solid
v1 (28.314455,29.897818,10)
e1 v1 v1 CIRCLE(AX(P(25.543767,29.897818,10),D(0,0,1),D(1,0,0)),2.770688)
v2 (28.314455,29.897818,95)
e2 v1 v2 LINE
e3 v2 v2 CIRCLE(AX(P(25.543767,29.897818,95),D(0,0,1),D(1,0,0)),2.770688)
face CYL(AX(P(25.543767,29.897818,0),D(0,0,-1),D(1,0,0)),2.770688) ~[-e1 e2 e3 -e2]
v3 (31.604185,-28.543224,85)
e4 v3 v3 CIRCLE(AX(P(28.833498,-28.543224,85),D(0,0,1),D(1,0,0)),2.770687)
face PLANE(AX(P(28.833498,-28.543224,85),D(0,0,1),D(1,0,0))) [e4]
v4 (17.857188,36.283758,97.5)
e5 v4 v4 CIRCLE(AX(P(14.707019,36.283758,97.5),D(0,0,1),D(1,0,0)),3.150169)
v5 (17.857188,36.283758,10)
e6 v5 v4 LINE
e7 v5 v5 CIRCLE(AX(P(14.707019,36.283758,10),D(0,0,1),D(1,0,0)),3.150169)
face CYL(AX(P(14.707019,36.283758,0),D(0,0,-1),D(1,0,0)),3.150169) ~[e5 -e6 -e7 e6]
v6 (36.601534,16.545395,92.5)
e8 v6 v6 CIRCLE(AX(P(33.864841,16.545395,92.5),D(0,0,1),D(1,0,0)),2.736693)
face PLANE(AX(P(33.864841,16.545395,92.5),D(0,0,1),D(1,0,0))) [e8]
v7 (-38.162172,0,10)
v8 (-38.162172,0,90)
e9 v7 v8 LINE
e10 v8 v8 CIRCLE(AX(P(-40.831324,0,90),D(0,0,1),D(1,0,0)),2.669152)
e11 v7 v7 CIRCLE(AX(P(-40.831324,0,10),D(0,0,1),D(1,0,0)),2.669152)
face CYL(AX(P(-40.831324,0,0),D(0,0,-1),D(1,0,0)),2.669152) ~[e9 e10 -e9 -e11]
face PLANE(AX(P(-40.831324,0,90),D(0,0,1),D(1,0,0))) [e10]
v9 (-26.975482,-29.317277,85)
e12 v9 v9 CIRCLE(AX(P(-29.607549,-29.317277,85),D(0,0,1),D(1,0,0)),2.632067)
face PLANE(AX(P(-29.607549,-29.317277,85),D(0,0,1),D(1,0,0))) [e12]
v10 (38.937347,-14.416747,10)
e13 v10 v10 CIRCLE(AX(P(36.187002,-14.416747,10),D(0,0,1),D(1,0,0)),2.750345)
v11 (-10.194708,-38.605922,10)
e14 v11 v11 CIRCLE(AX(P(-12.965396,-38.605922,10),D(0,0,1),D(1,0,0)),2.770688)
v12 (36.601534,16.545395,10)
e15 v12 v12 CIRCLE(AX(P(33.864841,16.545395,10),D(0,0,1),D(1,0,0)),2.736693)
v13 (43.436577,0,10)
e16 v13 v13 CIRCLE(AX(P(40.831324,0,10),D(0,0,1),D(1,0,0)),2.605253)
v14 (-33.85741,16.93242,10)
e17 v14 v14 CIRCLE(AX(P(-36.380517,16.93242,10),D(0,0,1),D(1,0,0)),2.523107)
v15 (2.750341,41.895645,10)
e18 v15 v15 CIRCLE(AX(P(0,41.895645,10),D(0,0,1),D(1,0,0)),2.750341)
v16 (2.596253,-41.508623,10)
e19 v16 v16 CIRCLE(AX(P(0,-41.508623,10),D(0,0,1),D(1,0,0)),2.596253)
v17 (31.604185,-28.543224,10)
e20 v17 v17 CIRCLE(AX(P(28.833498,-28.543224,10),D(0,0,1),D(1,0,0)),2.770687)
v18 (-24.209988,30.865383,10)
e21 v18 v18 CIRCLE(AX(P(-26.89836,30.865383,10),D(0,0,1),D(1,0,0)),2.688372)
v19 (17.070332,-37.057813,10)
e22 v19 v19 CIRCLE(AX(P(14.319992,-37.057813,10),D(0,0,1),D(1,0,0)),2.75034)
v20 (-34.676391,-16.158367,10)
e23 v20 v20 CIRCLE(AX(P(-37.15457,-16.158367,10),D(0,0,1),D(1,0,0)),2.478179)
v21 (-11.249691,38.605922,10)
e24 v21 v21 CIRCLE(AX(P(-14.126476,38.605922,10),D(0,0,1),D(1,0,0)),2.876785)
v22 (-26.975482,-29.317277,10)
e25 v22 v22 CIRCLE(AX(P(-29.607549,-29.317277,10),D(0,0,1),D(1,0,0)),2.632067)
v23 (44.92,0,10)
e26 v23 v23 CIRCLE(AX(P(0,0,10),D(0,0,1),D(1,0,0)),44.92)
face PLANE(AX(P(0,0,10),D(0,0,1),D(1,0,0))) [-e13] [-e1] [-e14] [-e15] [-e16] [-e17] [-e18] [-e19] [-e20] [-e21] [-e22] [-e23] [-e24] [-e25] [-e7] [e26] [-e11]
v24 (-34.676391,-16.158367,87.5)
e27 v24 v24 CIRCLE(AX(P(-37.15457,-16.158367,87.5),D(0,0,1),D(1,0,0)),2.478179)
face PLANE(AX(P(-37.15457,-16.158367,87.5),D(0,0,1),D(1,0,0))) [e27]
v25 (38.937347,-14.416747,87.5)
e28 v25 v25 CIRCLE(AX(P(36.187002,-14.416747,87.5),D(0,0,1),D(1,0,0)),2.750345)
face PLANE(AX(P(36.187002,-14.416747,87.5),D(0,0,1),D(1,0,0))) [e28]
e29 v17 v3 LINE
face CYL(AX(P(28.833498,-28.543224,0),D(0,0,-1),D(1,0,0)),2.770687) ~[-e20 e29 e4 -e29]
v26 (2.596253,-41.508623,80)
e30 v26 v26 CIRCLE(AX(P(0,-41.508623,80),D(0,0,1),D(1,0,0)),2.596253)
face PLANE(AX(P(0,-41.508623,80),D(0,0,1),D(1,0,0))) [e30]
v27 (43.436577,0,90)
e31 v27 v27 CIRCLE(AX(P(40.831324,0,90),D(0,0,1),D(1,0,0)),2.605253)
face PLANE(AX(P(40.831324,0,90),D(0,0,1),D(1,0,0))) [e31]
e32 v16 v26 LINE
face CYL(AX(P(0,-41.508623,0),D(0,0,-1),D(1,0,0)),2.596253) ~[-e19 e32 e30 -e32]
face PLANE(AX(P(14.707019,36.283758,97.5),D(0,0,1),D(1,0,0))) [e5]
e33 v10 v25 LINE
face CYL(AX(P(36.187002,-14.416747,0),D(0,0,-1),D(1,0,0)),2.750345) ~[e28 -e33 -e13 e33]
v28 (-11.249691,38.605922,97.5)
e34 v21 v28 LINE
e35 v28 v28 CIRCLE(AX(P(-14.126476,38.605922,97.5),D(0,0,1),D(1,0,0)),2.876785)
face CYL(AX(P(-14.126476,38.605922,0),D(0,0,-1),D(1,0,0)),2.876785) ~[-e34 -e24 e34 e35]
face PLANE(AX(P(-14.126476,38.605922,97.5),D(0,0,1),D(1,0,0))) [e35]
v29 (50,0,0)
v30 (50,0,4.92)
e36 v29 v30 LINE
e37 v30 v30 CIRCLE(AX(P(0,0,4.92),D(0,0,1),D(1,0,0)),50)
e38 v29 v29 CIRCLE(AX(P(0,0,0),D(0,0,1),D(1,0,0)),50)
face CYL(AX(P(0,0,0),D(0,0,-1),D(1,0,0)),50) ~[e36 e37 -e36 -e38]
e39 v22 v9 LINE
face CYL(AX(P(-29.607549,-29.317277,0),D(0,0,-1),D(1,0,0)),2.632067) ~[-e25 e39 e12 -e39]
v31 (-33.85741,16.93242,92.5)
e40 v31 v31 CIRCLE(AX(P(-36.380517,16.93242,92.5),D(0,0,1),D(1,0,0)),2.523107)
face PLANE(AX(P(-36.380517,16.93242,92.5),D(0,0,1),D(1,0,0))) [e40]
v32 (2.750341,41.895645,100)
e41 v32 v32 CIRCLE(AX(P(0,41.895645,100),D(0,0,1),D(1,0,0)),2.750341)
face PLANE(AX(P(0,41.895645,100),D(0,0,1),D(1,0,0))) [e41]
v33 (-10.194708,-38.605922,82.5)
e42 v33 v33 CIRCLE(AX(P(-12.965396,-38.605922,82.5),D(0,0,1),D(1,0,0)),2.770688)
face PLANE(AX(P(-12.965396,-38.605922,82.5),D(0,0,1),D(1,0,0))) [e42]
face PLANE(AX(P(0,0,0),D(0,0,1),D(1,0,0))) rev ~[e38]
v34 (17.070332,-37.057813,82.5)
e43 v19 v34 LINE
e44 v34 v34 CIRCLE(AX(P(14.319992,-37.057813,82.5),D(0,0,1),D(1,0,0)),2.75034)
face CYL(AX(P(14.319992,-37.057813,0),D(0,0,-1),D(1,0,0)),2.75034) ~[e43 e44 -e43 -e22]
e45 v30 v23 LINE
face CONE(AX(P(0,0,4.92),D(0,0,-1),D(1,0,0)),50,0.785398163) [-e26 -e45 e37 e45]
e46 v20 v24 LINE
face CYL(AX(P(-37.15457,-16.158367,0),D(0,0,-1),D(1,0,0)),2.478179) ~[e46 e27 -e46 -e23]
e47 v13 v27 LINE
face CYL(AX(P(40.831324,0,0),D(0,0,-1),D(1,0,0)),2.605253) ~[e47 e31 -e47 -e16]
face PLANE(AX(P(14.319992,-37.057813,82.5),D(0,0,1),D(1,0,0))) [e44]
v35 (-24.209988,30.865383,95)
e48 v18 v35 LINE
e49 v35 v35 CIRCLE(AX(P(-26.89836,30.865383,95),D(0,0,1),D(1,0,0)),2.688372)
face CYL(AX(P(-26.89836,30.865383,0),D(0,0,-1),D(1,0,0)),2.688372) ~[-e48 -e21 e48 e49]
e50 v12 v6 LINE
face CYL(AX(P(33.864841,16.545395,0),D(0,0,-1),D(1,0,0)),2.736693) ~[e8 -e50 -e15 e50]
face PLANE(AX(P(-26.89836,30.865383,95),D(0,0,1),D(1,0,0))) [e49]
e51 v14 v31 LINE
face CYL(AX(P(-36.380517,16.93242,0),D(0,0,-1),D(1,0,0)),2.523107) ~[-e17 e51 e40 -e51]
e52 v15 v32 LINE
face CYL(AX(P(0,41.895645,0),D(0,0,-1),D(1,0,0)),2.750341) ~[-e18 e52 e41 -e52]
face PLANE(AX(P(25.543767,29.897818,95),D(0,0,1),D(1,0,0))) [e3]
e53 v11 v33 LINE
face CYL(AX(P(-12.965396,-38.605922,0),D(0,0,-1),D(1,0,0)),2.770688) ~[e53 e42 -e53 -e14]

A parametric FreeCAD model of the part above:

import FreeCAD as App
import Part
import Sketcher
Q = App.Units.Quantity


def edges_at(feature, points):
    """Names of the edges that pass closest to the given points."""
    edges = feature.Shape.Edges
    near = lambda p: min(range(len(edges)), key=lambda i: edges[i].distToShape(Part.Vertex(*p))[0])
    return sorted({f"Edge{near(p) + 1}" for p in points})

doc = App.newDocument("Part")
body = doc.addObject("PartDesign::Body", "Body")

# Sketch on XY plane
sketch1 = body.newObject("Sketcher::SketchObject", "Sketch")
sketch1.AttachmentSupport = (doc.getObject("XY_Plane"), [""])
sketch1.MapMode = "FlatFace"
sketch1.addGeometry(Part.Circle(App.Vector(0, 0, 0), App.Vector(0, 0, 1), 50), False)
sketch1.addGeometry(Part.Circle(App.Vector(-29.607549, -29.317277, 0), App.Vector(0, 0, 1), 2.632067), False)
sketch1.addGeometry(Part.Circle(App.Vector(-12.965396, -38.605922, 0), App.Vector(0, 0, 1), 2.770688), False)
sketch1.addGeometry(Part.Circle(App.Vector(-37.15457, -16.158367, 0), App.Vector(0, 0, 1), 2.478179), False)
sketch1.addGeometry(Part.Circle(App.Vector(-40.831324, 0, 0), App.Vector(0, 0, 1), 2.669152), False)
sketch1.addGeometry(Part.Circle(App.Vector(0, -41.508623, 0), App.Vector(0, 0, 1), 2.596253), False)
sketch1.addGeometry(Part.Circle(App.Vector(14.319992, -37.057813, 0), App.Vector(0, 0, 1), 2.75034), False)
sketch1.addGeometry(Part.Circle(App.Vector(28.833498, -28.543224, 0), App.Vector(0, 0, 1), 2.770687), False)
sketch1.addGeometry(Part.Circle(App.Vector(36.187002, -14.416747, 0), App.Vector(0, 0, 1), 2.750345), False)
sketch1.addGeometry(Part.Circle(App.Vector(40.831324, 0, 0), App.Vector(0, 0, 1), 2.605253), False)
sketch1.addGeometry(Part.Circle(App.Vector(-36.380517, 16.93242, 0), App.Vector(0, 0, 1), 2.523107), False)
sketch1.addGeometry(Part.Circle(App.Vector(-26.89836, 30.865383, 0), App.Vector(0, 0, 1), 2.688372), False)
sketch1.addGeometry(Part.Circle(App.Vector(-14.126476, 38.605922, 0), App.Vector(0, 0, 1), 2.876785), False)
sketch1.addGeometry(Part.Circle(App.Vector(33.864841, 16.545395, 0), App.Vector(0, 0, 1), 2.736693), False)
sketch1.addGeometry(Part.Circle(App.Vector(0, 41.895645, 0), App.Vector(0, 0, 1), 2.750341), False)
sketch1.addGeometry(Part.Circle(App.Vector(14.707019, 36.283758, 0), App.Vector(0, 0, 1), 3.150169), False)
sketch1.addGeometry(Part.Circle(App.Vector(25.543767, 29.897818, 0), App.Vector(0, 0, 1), 2.770688), False)
sketch1.addConstraint(Sketcher.Constraint("Coincident", 0, 3, -1, 1))
sketch1.addConstraint(Sketcher.Constraint("Equal", 2, 7))
sketch1.addConstraint(Sketcher.Constraint("Equal", 6, 14))
sketch1.addConstraint(Sketcher.Constraint("Equal", 7, 16))
sketch1.addConstraint(Sketcher.Constraint("Symmetric", 4, 3, 9, 3, -1, 1))
sketch1.addConstraint(Sketcher.Constraint("PointOnObject", 4, 3, -1))
sketch1.addConstraint(Sketcher.Constraint("PointOnObject", 5, 3, -2))
sketch1.addConstraint(Sketcher.Constraint("PointOnObject", 14, 3, -2))
sketch1.addConstraint(Sketcher.Constraint("Diameter", 0, Q("100 mm")))
sketch1.addConstraint(Sketcher.Constraint("Diameter", 6, Q("5.50068 mm")))
sketch1.addConstraint(Sketcher.Constraint("Diameter", 8, Q("5.50069 mm")))
sketch1.addConstraint(Sketcher.Constraint("Diameter", 12, Q("5.75357 mm")))
sketch1.addConstraint(Sketcher.Constraint("Diameter", 1, Q("5.264134 mm")))
sketch1.addConstraint(Sketcher.Constraint("Diameter", 2, Q("5.541376 mm")))
sketch1.addConstraint(Sketcher.Constraint("Diameter", 3, Q("4.956358 mm")))
sketch1.addConstraint(Sketcher.Constraint("Diameter", 4, Q("5.338304 mm")))
sketch1.addConstraint(Sketcher.Constraint("Diameter", 5, Q("5.192506 mm")))
sketch1.addConstraint(Sketcher.Constraint("Diameter", 9, Q("5.210506 mm")))
sketch1.addConstraint(Sketcher.Constraint("Diameter", 10, Q("5.046214 mm")))
sketch1.addConstraint(Sketcher.Constraint("Diameter", 11, Q("5.376744 mm")))
sketch1.addConstraint(Sketcher.Constraint("Diameter", 13, Q("5.473386 mm")))
sketch1.addConstraint(Sketcher.Constraint("Diameter", 15, Q("6.300338 mm")))
sketch1.addConstraint(Sketcher.Constraint("DistanceY", 5, 3, 2, 3, Q("2.902701 mm")))
sketch1.addConstraint(Sketcher.Constraint("DistanceY", 5, 3, 7, 3, Q("12.965399 mm")))
sketch1.addConstraint(Sketcher.Constraint("DistanceY", 10, 3, 12, 3, Q("21.673502 mm")))
sketch1.addConstraint(Sketcher.Constraint("DistanceX", 1, 3, -1, 1, Q("29.607549 mm")))
sketch1.addConstraint(Sketcher.Constraint("DistanceX", 3, 3, -1, 1, Q("37.15457 mm")))
sketch1.addConstraint(Sketcher.Constraint("DistanceX", -1, 1, 6, 3, Q("14.319992 mm")))
sketch1.addConstraint(Sketcher.Constraint("DistanceY", -1, 1, 10, 3, Q("16.93242 mm")))
sketch1.addConstraint(Sketcher.Constraint("DistanceX", 11, 3, -1, 1, Q("26.89836 mm")))
sketch1.addConstraint(Sketcher.Constraint("DistanceX", -1, 1, 13, 3, Q("33.864841 mm")))
sketch1.addConstraint(Sketcher.Constraint("DistanceX", -1, 1, 15, 3, Q("14.707019 mm")))
sketch1.addConstraint(Sketcher.Constraint("DistanceY", -1, 1, 16, 3, Q("29.897818 mm")))
sketch1.addConstraint(Sketcher.Constraint("DistanceY", 1, 3, 3, 3, Q("13.15891 mm")))
sketch1.addConstraint(Sketcher.Constraint("DistanceX", 4, 3, 2, 3, Q("27.865928 mm")))
sketch1.addConstraint(Sketcher.Constraint("DistanceY", 5, 3, 6, 3, Q("4.45081 mm")))
sketch1.addConstraint(Sketcher.Constraint("DistanceX", 6, 3, 8, 3, Q("21.86701 mm")))
sketch1.addConstraint(Sketcher.Constraint("DistanceX", 10, 3, 2, 3, Q("23.415121 mm")))
sketch1.addConstraint(Sketcher.Constraint("DistanceY", 3, 3, 11, 3, Q("47.02375 mm")))
sketch1.addConstraint(Sketcher.Constraint("DistanceY", 11, 3, 12, 3, Q("7.740539 mm")))
sketch1.addConstraint(Sketcher.Constraint("DistanceX", 10, 3, 12, 3, Q("22.254041 mm")))
sketch1.addConstraint(Sketcher.Constraint("DistanceY", 8, 3, 13, 3, Q("30.962142 mm")))
sketch1.addConstraint(Sketcher.Constraint("DistanceY", 7, 3, 13, 3, Q("45.088619 mm")))
sketch1.addConstraint(Sketcher.Constraint("DistanceY", 13, 3, 14, 3, Q("25.35025 mm")))
sketch1.addConstraint(Sketcher.Constraint("DistanceY", 16, 3, 15, 3, Q("6.38594 mm")))
sketch1.addConstraint(Sketcher.Constraint("DistanceX", 2, 3, -1, 1, Q("12.965396 mm")))
sketch1.addConstraint(Sketcher.Constraint("DistanceY", 2, 3, -1, 1, Q("38.605922 mm")))
sketch1.addConstraint(Sketcher.Constraint("DistanceX", -1, 1, 7, 3, Q("28.833498 mm")))
sketch1.addConstraint(Sketcher.Constraint("DistanceX", -1, 1, 16, 3, Q("25.543767 mm")))
pad1 = body.newObject("PartDesign::Pad", "Pad")
pad1.Profile = sketch1
pad1.Length = 10
doc.recompute()

chamfer = body.newObject("PartDesign::Chamfer", "Chamfer")
chamfer.Base = (pad1, edges_at(pad1, [(-50, 0, 10)]))
chamfer.Size = 5.08

# Sketch on XY plane
sketch2 = body.newObject("Sketcher::SketchObject", "Sketch001")
sketch2.AttachmentSupport = (doc.getObject("XY_Plane"), [""])
sketch2.MapMode = "FlatFace"
sketch2.addGeometry(Part.Circle(App.Vector(0, 41.895645, 0), App.Vector(0, 0, 1), 2.750341), False)
sketch2.addConstraint(Sketcher.Constraint("PointOnObject", 0, 3, -2))
sketch2.addConstraint(Sketcher.Constraint("Diameter", 0, Q("5.500682 mm")))
sketch2.addConstraint(Sketcher.Constraint("DistanceY", -1, 1, 0, 3, Q("41.895645 mm")))
pad2 = body.newObject("PartDesign::Pad", "Pad001")
pad2.Profile = sketch2
pad2.Length = 100

# Sketch on XY plane
sketch3 = body.newObject("Sketcher::SketchObject", "Sketch002")
sketch3.AttachmentSupport = (doc.getObject("XY_Plane"), [""])
sketch3.MapMode = "FlatFace"
sketch3.addGeometry(Part.Circle(App.Vector(-14.126476, 38.605922, 0), App.Vector(0, 0, 1), 2.876785), False)
sketch3.addGeometry(Part.Circle(App.Vector(14.707019, 36.283758, 0), App.Vector(0, 0, 1), 3.150169), False)
sketch3.addConstraint(Sketcher.Constraint("Diameter", 0, Q("5.75357 mm")))
sketch3.addConstraint(Sketcher.Constraint("Diameter", 1, Q("6.300338 mm")))
sketch3.addConstraint(Sketcher.Constraint("DistanceX", -1, 1, 1, 3, Q("14.707019 mm")))
sketch3.addConstraint(Sketcher.Constraint("DistanceX", 0, 3, -1, 1, Q("14.126476 mm")))
sketch3.addConstraint(Sketcher.Constraint("DistanceY", -1, 1, 0, 3, Q("38.605922 mm")))
sketch3.addConstraint(Sketcher.Constraint("DistanceY", -1, 1, 1, 3, Q("36.283758 mm")))
pad3 = body.newObject("PartDesign::Pad", "Pad002")
pad3.Profile = sketch3
pad3.Length = 97.5

# Sketch on XY plane
sketch4 = body.newObject("Sketcher::SketchObject", "Sketch003")
sketch4.AttachmentSupport = (doc.getObject("XY_Plane"), [""])
sketch4.MapMode = "FlatFace"
sketch4.addGeometry(Part.Circle(App.Vector(-26.89836, 30.865383, 0), App.Vector(0, 0, 1), 2.688372), False)
sketch4.addGeometry(Part.Circle(App.Vector(25.543767, 29.897818, 0), App.Vector(0, 0, 1), 2.770688), False)
sketch4.addConstraint(Sketcher.Constraint("Diameter", 0, Q("5.376744 mm")))
sketch4.addConstraint(Sketcher.Constraint("Diameter", 1, Q("5.541376 mm")))
sketch4.addConstraint(Sketcher.Constraint("DistanceX", 0, 3, -1, 1, Q("26.89836 mm")))
sketch4.addConstraint(Sketcher.Constraint("DistanceY", -1, 1, 1, 3, Q("29.897818 mm")))
sketch4.addConstraint(Sketcher.Constraint("DistanceY", -1, 1, 0, 3, Q("30.865383 mm")))
sketch4.addConstraint(Sketcher.Constraint("DistanceX", -1, 1, 1, 3, Q("25.543767 mm")))
pad4 = body.newObject("PartDesign::Pad", "Pad003")
pad4.Profile = sketch4
pad4.Length = 95

# Sketch on XY plane
sketch5 = body.newObject("Sketcher::SketchObject", "Sketch004")
sketch5.AttachmentSupport = (doc.getObject("XY_Plane"), [""])
sketch5.MapMode = "FlatFace"
sketch5.addGeometry(Part.Circle(App.Vector(-36.380517, 16.93242, 0), App.Vector(0, 0, 1), 2.523107), False)
sketch5.addGeometry(Part.Circle(App.Vector(33.864841, 16.545395, 0), App.Vector(0, 0, 1), 2.736693), False)
sketch5.addConstraint(Sketcher.Constraint("Diameter", 0, Q("5.046214 mm")))
sketch5.addConstraint(Sketcher.Constraint("Diameter", 1, Q("5.473386 mm")))
sketch5.addConstraint(Sketcher.Constraint("DistanceY", -1, 1, 0, 3, Q("16.93242 mm")))
sketch5.addConstraint(Sketcher.Constraint("DistanceX", -1, 1, 1, 3, Q("33.864841 mm")))
sketch5.addConstraint(Sketcher.Constraint("DistanceX", 0, 3, -1, 1, Q("36.380517 mm")))
sketch5.addConstraint(Sketcher.Constraint("DistanceY", -1, 1, 1, 3, Q("16.545395 mm")))
pad5 = body.newObject("PartDesign::Pad", "Pad004")
pad5.Profile = sketch5
pad5.Length = 92.5

# Sketch on XY plane
sketch6 = body.newObject("Sketcher::SketchObject", "Sketch005")
sketch6.AttachmentSupport = (doc.getObject("XY_Plane"), [""])
sketch6.MapMode = "FlatFace"
sketch6.addGeometry(Part.Circle(App.Vector(40.831324, 0, 0), App.Vector(0, 0, 1), 2.605253), False)
sketch6.addGeometry(Part.Circle(App.Vector(-40.831324, 0, 0), App.Vector(0, 0, 1), 2.669152), False)
sketch6.addConstraint(Sketcher.Constraint("Symmetric", 0, 3, 1, 3, -1, 1))
sketch6.addConstraint(Sketcher.Constraint("PointOnObject", 0, 3, -1))
sketch6.addConstraint(Sketcher.Constraint("Diameter", 0, Q("5.210506 mm")))
sketch6.addConstraint(Sketcher.Constraint("Diameter", 1, Q("5.338304 mm")))
sketch6.addConstraint(Sketcher.Constraint("DistanceX", 1, 3, 0, 3, Q("81.662648 mm")))
pad6 = body.newObject("PartDesign::Pad", "Pad005")
pad6.Profile = sketch6
pad6.Length = 90

# Sketch on XY plane
sketch7 = body.newObject("Sketcher::SketchObject", "Sketch006")
sketch7.AttachmentSupport = (doc.getObject("XY_Plane"), [""])
sketch7.MapMode = "FlatFace"
sketch7.addGeometry(Part.Circle(App.Vector(-37.15457, -16.158367, 0), App.Vector(0, 0, 1), 2.478179), False)
sketch7.addGeometry(Part.Circle(App.Vector(36.187002, -14.416747, 0), App.Vector(0, 0, 1), 2.750345), False)
sketch7.addConstraint(Sketcher.Constraint("Diameter", 1, Q("5.50069 mm")))
sketch7.addConstraint(Sketcher.Constraint("Diameter", 0, Q("4.956358 mm")))
sketch7.addConstraint(Sketcher.Constraint("DistanceX", 0, 3, -1, 1, Q("37.15457 mm")))
sketch7.addConstraint(Sketcher.Constraint("DistanceX", 0, 3, 1, 3, Q("73.341572 mm")))
sketch7.addConstraint(Sketcher.Constraint("DistanceY", 0, 3, 1, 3, Q("1.74162 mm")))
sketch7.addConstraint(Sketcher.Constraint("DistanceY", 0, 3, -1, 1, Q("16.158367 mm")))
pad7 = body.newObject("PartDesign::Pad", "Pad006")
pad7.Profile = sketch7
pad7.Length = 87.5

# Sketch on XY plane
sketch8 = body.newObject("Sketcher::SketchObject", "Sketch007")
sketch8.AttachmentSupport = (doc.getObject("XY_Plane"), [""])
sketch8.MapMode = "FlatFace"
sketch8.addGeometry(Part.Circle(App.Vector(28.833498, -28.543224, 0), App.Vector(0, 0, 1), 2.770687), False)
sketch8.addGeometry(Part.Circle(App.Vector(-29.607549, -29.317277, 0), App.Vector(0, 0, 1), 2.632067), False)
sketch8.addConstraint(Sketcher.Constraint("Diameter", 0, Q("5.541374 mm")))
sketch8.addConstraint(Sketcher.Constraint("Diameter", 1, Q("5.264134 mm")))
sketch8.addConstraint(Sketcher.Constraint("DistanceX", 1, 3, -1, 1, Q("29.607549 mm")))
sketch8.addConstraint(Sketcher.Constraint("DistanceX", -1, 1, 0, 3, Q("28.833498 mm")))
sketch8.addConstraint(Sketcher.Constraint("DistanceY", 0, 3, -1, 1, Q("28.543224 mm")))
sketch8.addConstraint(Sketcher.Constraint("DistanceY", 1, 3, -1, 1, Q("29.317277 mm")))
pad8 = body.newObject("PartDesign::Pad", "Pad007")
pad8.Profile = sketch8
pad8.Length = 85

# Sketch on XY plane
sketch9 = body.newObject("Sketcher::SketchObject", "Sketch008")
sketch9.AttachmentSupport = (doc.getObject("XY_Plane"), [""])
sketch9.MapMode = "FlatFace"
sketch9.addGeometry(Part.Circle(App.Vector(14.319992, -37.057813, 0), App.Vector(0, 0, 1), 2.75034), False)
sketch9.addGeometry(Part.Circle(App.Vector(-12.965396, -38.605922, 0), App.Vector(0, 0, 1), 2.770688), False)
sketch9.addConstraint(Sketcher.Constraint("Diameter", 0, Q("5.50068 mm")))
sketch9.addConstraint(Sketcher.Constraint("Diameter", 1, Q("5.541376 mm")))
sketch9.addConstraint(Sketcher.Constraint("DistanceX", -1, 1, 0, 3, Q("14.319992 mm")))
sketch9.addConstraint(Sketcher.Constraint("DistanceY", 1, 3, 0, 3, Q("1.548109 mm")))
sketch9.addConstraint(Sketcher.Constraint("DistanceY", 0, 3, -1, 1, Q("37.057813 mm")))
sketch9.addConstraint(Sketcher.Constraint("DistanceX", 1, 3, -1, 1, Q("12.965396 mm")))
pad9 = body.newObject("PartDesign::Pad", "Pad008")
pad9.Profile = sketch9
pad9.Length = 82.5

# Sketch on XY plane
sketch10 = body.newObject("Sketcher::SketchObject", "Sketch009")
sketch10.AttachmentSupport = (doc.getObject("XY_Plane"), [""])
sketch10.MapMode = "FlatFace"
sketch10.addGeometry(Part.Circle(App.Vector(0, -41.508623, 0), App.Vector(0, 0, 1), 2.596253), False)
sketch10.addConstraint(Sketcher.Constraint("PointOnObject", 0, 3, -2))
sketch10.addConstraint(Sketcher.Constraint("Diameter", 0, Q("5.192506 mm")))
sketch10.addConstraint(Sketcher.Constraint("DistanceY", 0, 3, -1, 1, Q("41.508623 mm")))
pad10 = body.newObject("PartDesign::Pad", "Pad009")
pad10.Profile = sketch10
pad10.Length = 80

doc.recompute()
